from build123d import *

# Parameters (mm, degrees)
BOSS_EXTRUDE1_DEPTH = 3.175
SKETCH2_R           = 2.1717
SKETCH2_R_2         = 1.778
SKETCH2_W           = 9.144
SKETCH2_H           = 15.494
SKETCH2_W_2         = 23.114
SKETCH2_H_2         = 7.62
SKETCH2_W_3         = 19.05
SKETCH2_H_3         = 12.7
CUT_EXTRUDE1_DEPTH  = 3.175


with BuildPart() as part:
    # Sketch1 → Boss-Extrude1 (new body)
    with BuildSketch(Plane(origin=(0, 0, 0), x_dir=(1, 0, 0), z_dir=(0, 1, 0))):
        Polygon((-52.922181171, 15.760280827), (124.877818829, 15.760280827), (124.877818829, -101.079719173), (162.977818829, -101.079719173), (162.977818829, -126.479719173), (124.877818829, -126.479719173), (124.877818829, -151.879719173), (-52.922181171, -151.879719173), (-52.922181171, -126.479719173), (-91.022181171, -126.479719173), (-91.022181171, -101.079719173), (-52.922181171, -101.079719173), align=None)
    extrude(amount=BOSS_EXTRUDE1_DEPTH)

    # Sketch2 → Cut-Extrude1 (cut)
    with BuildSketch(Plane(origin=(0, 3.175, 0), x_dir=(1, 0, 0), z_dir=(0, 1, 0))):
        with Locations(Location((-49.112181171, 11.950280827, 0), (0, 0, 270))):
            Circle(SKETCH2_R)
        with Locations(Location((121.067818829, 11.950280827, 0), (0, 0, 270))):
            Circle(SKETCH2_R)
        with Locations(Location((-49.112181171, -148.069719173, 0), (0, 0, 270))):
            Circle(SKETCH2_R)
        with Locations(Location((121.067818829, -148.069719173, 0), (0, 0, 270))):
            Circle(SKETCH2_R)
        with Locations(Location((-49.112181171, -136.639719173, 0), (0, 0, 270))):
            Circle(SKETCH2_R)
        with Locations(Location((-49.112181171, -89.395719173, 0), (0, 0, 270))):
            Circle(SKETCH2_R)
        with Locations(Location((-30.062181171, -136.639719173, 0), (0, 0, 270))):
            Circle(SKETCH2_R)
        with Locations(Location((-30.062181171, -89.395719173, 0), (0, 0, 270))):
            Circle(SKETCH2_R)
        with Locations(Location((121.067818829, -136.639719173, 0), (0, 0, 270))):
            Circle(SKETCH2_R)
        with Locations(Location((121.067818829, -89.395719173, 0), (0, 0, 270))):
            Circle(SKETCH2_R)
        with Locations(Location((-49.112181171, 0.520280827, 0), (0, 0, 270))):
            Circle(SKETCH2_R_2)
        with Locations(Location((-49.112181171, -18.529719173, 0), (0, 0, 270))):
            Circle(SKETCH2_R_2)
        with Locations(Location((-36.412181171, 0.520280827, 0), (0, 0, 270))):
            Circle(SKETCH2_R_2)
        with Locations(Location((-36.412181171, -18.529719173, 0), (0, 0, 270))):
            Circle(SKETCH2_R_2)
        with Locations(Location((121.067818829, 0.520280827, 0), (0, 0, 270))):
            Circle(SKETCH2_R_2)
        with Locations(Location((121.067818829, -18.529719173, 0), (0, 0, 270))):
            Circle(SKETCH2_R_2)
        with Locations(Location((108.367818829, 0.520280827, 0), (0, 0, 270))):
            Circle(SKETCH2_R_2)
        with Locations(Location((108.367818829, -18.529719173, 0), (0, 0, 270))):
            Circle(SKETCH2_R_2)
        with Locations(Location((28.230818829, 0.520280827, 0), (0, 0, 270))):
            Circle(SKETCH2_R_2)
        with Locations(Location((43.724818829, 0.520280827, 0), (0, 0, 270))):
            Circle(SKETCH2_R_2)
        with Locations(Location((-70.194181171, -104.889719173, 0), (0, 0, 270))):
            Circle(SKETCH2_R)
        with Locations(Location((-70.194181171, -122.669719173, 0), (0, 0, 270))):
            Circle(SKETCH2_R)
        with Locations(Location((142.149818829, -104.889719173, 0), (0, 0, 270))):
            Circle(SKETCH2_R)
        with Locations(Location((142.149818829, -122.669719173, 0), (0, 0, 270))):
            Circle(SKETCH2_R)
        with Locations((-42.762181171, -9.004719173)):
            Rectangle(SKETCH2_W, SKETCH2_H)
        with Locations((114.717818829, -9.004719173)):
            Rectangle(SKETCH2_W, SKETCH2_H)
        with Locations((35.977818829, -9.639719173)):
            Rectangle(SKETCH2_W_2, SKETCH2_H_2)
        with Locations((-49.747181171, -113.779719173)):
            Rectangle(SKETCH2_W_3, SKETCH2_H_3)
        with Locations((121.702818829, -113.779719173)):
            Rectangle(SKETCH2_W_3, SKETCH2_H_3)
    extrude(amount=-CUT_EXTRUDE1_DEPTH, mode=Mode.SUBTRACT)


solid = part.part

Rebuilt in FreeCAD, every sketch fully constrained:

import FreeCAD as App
import Part
import Sketcher

V = App.Vector
Q = App.Units.Quantity

doc = App.newDocument("Part")
body = doc.addObject("PartDesign::Body", "Body")

# Sketch on XZ plane
sketch1 = body.newObject("Sketcher::SketchObject", "Sketch")
sketch1.AttachmentSupport = (doc.getObject("XZ_Plane"), [""])
sketch1.MapMode = "FlatFace"
sketch1.addGeometry(Part.LineSegment(V(125, -16, 0), V(-53, -16, 0)), False)
sketch1.addGeometry(Part.LineSegment(V(-53, -16, 0), V(-53, 101, 0)), False)
sketch1.addGeometry(Part.LineSegment(V(-53, 101, 0), V(-91, 101, 0)), False)
sketch1.addGeometry(Part.LineSegment(V(-91, 101, 0), V(-91, 126, 0)), False)
sketch1.addGeometry(Part.LineSegment(V(-91, 126, 0), V(-53, 126, 0)), False)
sketch1.addGeometry(Part.LineSegment(V(-53, 126, 0), V(-53, 152, 0)), False)
sketch1.addGeometry(Part.LineSegment(V(-53, 152, 0), V(125, 152, 0)), False)
sketch1.addGeometry(Part.LineSegment(V(125, 152, 0), V(125, 126, 0)), False)
sketch1.addGeometry(Part.LineSegment(V(125, 126, 0), V(163, 126, 0)), False)
sketch1.addGeometry(Part.LineSegment(V(163, 126, 0), V(163, 101, 0)), False)
sketch1.addGeometry(Part.LineSegment(V(163, 101, 0), V(125, 101, 0)), False)
sketch1.addGeometry(Part.LineSegment(V(125, 101, 0), V(125, -16, 0)), False)
sketch1.addConstraint(Sketcher.Constraint("Coincident", 0, 2, 1, 1))
sketch1.addConstraint(Sketcher.Constraint("Coincident", 1, 2, 2, 1))
sketch1.addConstraint(Sketcher.Constraint("Coincident", 2, 2, 3, 1))
sketch1.addConstraint(Sketcher.Constraint("Coincident", 3, 2, 4, 1))
sketch1.addConstraint(Sketcher.Constraint("Coincident", 4, 2, 5, 1))
sketch1.addConstraint(Sketcher.Constraint("Coincident", 5, 2, 6, 1))
sketch1.addConstraint(Sketcher.Constraint("Coincident", 6, 2, 7, 1))
sketch1.addConstraint(Sketcher.Constraint("Coincident", 7, 2, 8, 1))
sketch1.addConstraint(Sketcher.Constraint("Coincident", 8, 2, 9, 1))
sketch1.addConstraint(Sketcher.Constraint("Coincident", 9, 2, 10, 1))
sketch1.addConstraint(Sketcher.Constraint("Coincident", 10, 2, 11, 1))
sketch1.addConstraint(Sketcher.Constraint("Coincident", 11, 2, 0, 1))
sketch1.addConstraint(Sketcher.Constraint("Horizontal", 0))
sketch1.addConstraint(Sketcher.Constraint("Vertical", 1))
sketch1.addConstraint(Sketcher.Constraint("Horizontal", 2))
sketch1.addConstraint(Sketcher.Constraint("Vertical", 3))
sketch1.addConstraint(Sketcher.Constraint("Horizontal", 4))
sketch1.addConstraint(Sketcher.Constraint("Vertical", 5))
sketch1.addConstraint(Sketcher.Constraint("Horizontal", 6))
sketch1.addConstraint(Sketcher.Constraint("Vertical", 7))
sketch1.addConstraint(Sketcher.Constraint("Horizontal", 8))
sketch1.addConstraint(Sketcher.Constraint("Vertical", 9))
sketch1.addConstraint(Sketcher.Constraint("Horizontal", 10))
sketch1.addConstraint(Sketcher.Constraint("Vertical", 11))
sketch1.addConstraint(Sketcher.Constraint("Horizontal", 4, 2, 7, 2))
sketch1.addConstraint(Sketcher.Constraint("Horizontal", 2, 2, 9, 2))
sketch1.addConstraint(Sketcher.Constraint("Vertical", 1, 2, 4, 2))
sketch1.addConstraint(Sketcher.Constraint("Vertical", 7, 2, 10, 2))
sketch1.addConstraint(Sketcher.Constraint("Equal", 4, 8))
sketch1.addConstraint(Sketcher.Constraint("Equal", 3, 5))
sketch1.addConstraint(Sketcher.Constraint("DistanceX", 0, 2, 0, 1, Q("7 in")))
sketch1.addConstraint(Sketcher.Constraint("DistanceY", 3, 1, 3, 2, Q("1 in")))
sketch1.addConstraint(Sketcher.Constraint("DistanceX", 2, 2, 2, 1, Q("1.5 in")))
sketch1.addConstraint(Sketcher.Constraint("DistanceY", 1, 1, 1, 2, Q("4.6 in")))
sketch1.addConstraint(Sketcher.Constraint("DistanceX", 0, 2, -1, 1, 52.922181))
sketch1.addConstraint(Sketcher.Constraint("DistanceY", 0, 2, -1, 1, 15.760281))
pad1 = body.newObject("PartDesign::Pad", "Pad")
pad1.Profile = sketch1
pad1.Length = Q("0.125 in")
pad1.Reversed = True

# Sketch on XZ plane
sketch2 = body.newObject("Sketcher::SketchObject", "Sketch001")
sketch2.AttachmentSupport = (doc.getObject("XZ_Plane"), [""])
sketch2.MapMode = "FlatFace"
sketch2.AttachmentOffset = App.Placement(V(0, 0, -0.125 * 25.4), App.Rotation())
sketch2.addGeometry(Part.Circle(V(-49.1, -12, 0), V(0, 0, 1), 2.2), False)
sketch2.addGeometry(Part.Circle(V(121.1, -12, 0), V(0, 0, 1), 2.2), False)
sketch2.addGeometry(Part.Circle(V(-49.1, 148.1, 0), V(0, 0, 1), 2.2), False)
sketch2.addGeometry(Part.Circle(V(121.1, 148.1, 0), V(0, 0, 1), 2.2), False)
sketch2.addGeometry(Part.Circle(V(-49.1, 136.6, 0), V(0, 0, 1), 2.2), False)
sketch2.addGeometry(Part.Circle(V(-49.1, 89.4, 0), V(0, 0, 1), 2.2), False)
sketch2.addGeometry(Part.Circle(V(-30.1, 136.6, 0), V(0, 0, 1), 2.2), False)
sketch2.addGeometry(Part.Circle(V(-30.1, 89.4, 0), V(0, 0, 1), 2.2), False)
sketch2.addGeometry(Part.Circle(V(121.1, 136.6, 0), V(0, 0, 1), 2.2), False)
sketch2.addGeometry(Part.Circle(V(121.1, 89.4, 0), V(0, 0, 1), 2.2), False)
sketch2.addGeometry(Part.Circle(V(-49.1, -0.5, 0), V(0, 0, 1), 1.8), False)
sketch2.addGeometry(Part.Circle(V(-49.1, 18.5, 0), V(0, 0, 1), 1.8), False)
sketch2.addGeometry(Part.Circle(V(-36.4, -0.5, 0), V(0, 0, 1), 1.8), False)
sketch2.addGeometry(Part.Circle(V(-36.4, 18.5, 0), V(0, 0, 1), 1.8), False)
sketch2.addGeometry(Part.Circle(V(121.1, -0.5, 0), V(0, 0, 1), 1.8), False)
sketch2.addGeometry(Part.Circle(V(121.1, 18.5, 0), V(0, 0, 1), 1.8), False)
sketch2.addGeometry(Part.Circle(V(108.4, -0.5, 0), V(0, 0, 1), 1.8), False)
sketch2.addGeometry(Part.Circle(V(108.4, 18.5, 0), V(0, 0, 1), 1.8), False)
sketch2.addGeometry(Part.Circle(V(28.2, -0.5, 0), V(0, 0, 1), 1.8), False)
sketch2.addGeometry(Part.Circle(V(43.7, -0.5, 0), V(0, 0, 1), 1.8), False)
sketch2.addGeometry(Part.Circle(V(-70.2, 104.9, 0), V(0, 0, 1), 2.2), False)
sketch2.addGeometry(Part.Circle(V(-70.2, 122.7, 0), V(0, 0, 1), 2.2), False)
sketch2.addGeometry(Part.Circle(V(142.1, 104.9, 0), V(0, 0, 1), 2.2), False)
sketch2.addGeometry(Part.Circle(V(142.1, 122.7, 0), V(0, 0, 1), 2.2), False)
sketch2.addGeometry(Part.LineSegment(V(-47.3, 1.3, 0), V(-47.3, 16.8, 0)), False)
sketch2.addGeometry(Part.LineSegment(V(-47.3, 16.8, 0), V(-38.2, 16.8, 0)), False)
sketch2.addGeometry(Part.LineSegment(V(-38.2, 16.8, 0), V(-38.2, 1.3, 0)), False)
sketch2.addGeometry(Part.LineSegment(V(-38.2, 1.3, 0), V(-47.3, 1.3, 0)), False)
sketch2.addGeometry(Part.LineSegment(V(110.1, 1.3, 0), V(110.1, 16.8, 0)), False)
sketch2.addGeometry(Part.LineSegment(V(110.1, 16.8, 0), V(119.3, 16.8, 0)), False)
sketch2.addGeometry(Part.LineSegment(V(119.3, 16.8, 0), V(119.3, 1.3, 0)), False)
sketch2.addGeometry(Part.LineSegment(V(119.3, 1.3, 0), V(110.1, 1.3, 0)), False)
sketch2.addGeometry(Part.LineSegment(V(24.4, 5.8, 0), V(24.4, 13.4, 0)), False)
sketch2.addGeometry(Part.LineSegment(V(24.4, 13.4, 0), V(47.5, 13.4, 0)), False)
sketch2.addGeometry(Part.LineSegment(V(47.5, 13.4, 0), V(47.5, 5.8, 0)), False)
sketch2.addGeometry(Part.LineSegment(V(47.5, 5.8, 0), V(24.4, 5.8, 0)), False)
sketch2.addGeometry(Part.LineSegment(V(-59.3, 107.4, 0), V(-59.3, 120.1, 0)), False)
sketch2.addGeometry(Part.LineSegment(V(-59.3, 120.1, 0), V(-40.2, 120.1, 0)), False)
sketch2.addGeometry(Part.LineSegment(V(-40.2, 120.1, 0), V(-40.2, 107.4, 0)), False)
sketch2.addGeometry(Part.LineSegment(V(-40.2, 107.4, 0), V(-59.3, 107.4, 0)), False)
sketch2.addGeometry(Part.LineSegment(V(112.2, 107.4, 0), V(112.2, 120.1, 0)), False)
sketch2.addGeometry(Part.LineSegment(V(112.2, 120.1, 0), V(131.2, 120.1, 0)), False)
sketch2.addGeometry(Part.LineSegment(V(131.2, 120.1, 0), V(131.2, 107.4, 0)), False)
sketch2.addGeometry(Part.LineSegment(V(131.2, 107.4, 0), V(112.2, 107.4, 0)), False)
sketch2.addConstraint(Sketcher.Constraint("Coincident", 24, 2, 25, 1))
sketch2.addConstraint(Sketcher.Constraint("Coincident", 25, 2, 26, 1))
sketch2.addConstraint(Sketcher.Constraint("Coincident", 26, 2, 27, 1))
sketch2.addConstraint(Sketcher.Constraint("Coincident", 27, 2, 24, 1))
sketch2.addConstraint(Sketcher.Constraint("Coincident", 28, 2, 29, 1))
sketch2.addConstraint(Sketcher.Constraint("Coincident", 29, 2, 30, 1))
sketch2.addConstraint(Sketcher.Constraint("Coincident", 30, 2, 31, 1))
sketch2.addConstraint(Sketcher.Constraint("Coincident", 31, 2, 28, 1))
sketch2.addConstraint(Sketcher.Constraint("Coincident", 32, 2, 33, 1))
sketch2.addConstraint(Sketcher.Constraint("Coincident", 33, 2, 34, 1))
sketch2.addConstraint(Sketcher.Constraint("Coincident", 34, 2, 35, 1))
sketch2.addConstraint(Sketcher.Constraint("Coincident", 35, 2, 32, 1))
sketch2.addConstraint(Sketcher.Constraint("Coincident", 36, 2, 37, 1))
sketch2.addConstraint(Sketcher.Constraint("Coincident", 37, 2, 38, 1))
sketch2.addConstraint(Sketcher.Constraint("Coincident", 38, 2, 39, 1))
sketch2.addConstraint(Sketcher.Constraint("Coincident", 39, 2, 36, 1))
sketch2.addConstraint(Sketcher.Constraint("Coincident", 40, 2, 41, 1))
sketch2.addConstraint(Sketcher.Constraint("Coincident", 41, 2, 42, 1))
sketch2.addConstraint(Sketcher.Constraint("Coincident", 42, 2, 43, 1))
sketch2.addConstraint(Sketcher.Constraint("Coincident", 43, 2, 40, 1))
sketch2.addConstraint(Sketcher.Constraint("Vertical", 24))
sketch2.addConstraint(Sketcher.Constraint("Horizontal", 25))
sketch2.addConstraint(Sketcher.Constraint("Vertical", 26))
sketch2.addConstraint(Sketcher.Constraint("Horizontal", 27))
sketch2.addConstraint(Sketcher.Constraint("Vertical", 28))
sketch2.addConstraint(Sketcher.Constraint("Horizontal", 29))
sketch2.addConstraint(Sketcher.Constraint("Vertical", 30))
sketch2.addConstraint(Sketcher.Constraint("Horizontal", 31))
sketch2.addConstraint(Sketcher.Constraint("Vertical", 32))
sketch2.addConstraint(Sketcher.Constraint("Horizontal", 33))
sketch2.addConstraint(Sketcher.Constraint("Vertical", 34))
sketch2.addConstraint(Sketcher.Constraint("Horizontal", 35))
sketch2.addConstraint(Sketcher.Constraint("Vertical", 36))
sketch2.addConstraint(Sketcher.Constraint("Horizontal", 37))
sketch2.addConstraint(Sketcher.Constraint("Vertical", 38))
sketch2.addConstraint(Sketcher.Constraint("Horizontal", 39))
sketch2.addConstraint(Sketcher.Constraint("Vertical", 40))
sketch2.addConstraint(Sketcher.Constraint("Horizontal", 41))
sketch2.addConstraint(Sketcher.Constraint("Vertical", 42))
sketch2.addConstraint(Sketcher.Constraint("Horizontal", 43))
sketch2.addConstraint(Sketcher.Constraint("Equal", 0, 1))
sketch2.addConstraint(Sketcher.Constraint("Equal", 1, 2))
sketch2.addConstraint(Sketcher.Constraint("Equal", 2, 3))
sketch2.addConstraint(Sketcher.Constraint("Equal", 3, 4))
sketch2.addConstraint(Sketcher.Constraint("Equal", 4, 5))
sketch2.addConstraint(Sketcher.Constraint("Equal", 5, 6))
sketch2.addConstraint(Sketcher.Constraint("Equal", 6, 7))
sketch2.addConstraint(Sketcher.Constraint("Equal", 7, 8))
sketch2.addConstraint(Sketcher.Constraint("Equal", 8, 9))
sketch2.addConstraint(Sketcher.Constraint("Equal", 10, 11))
sketch2.addConstraint(Sketcher.Constraint("Equal", 11, 12))
sketch2.addConstraint(Sketcher.Constraint("Equal", 12, 13))
sketch2.addConstraint(Sketcher.Constraint("Equal", 13, 14))
sketch2.addConstraint(Sketcher.Constraint("Equal", 14, 15))
sketch2.addConstraint(Sketcher.Constraint("Equal", 15, 16))
sketch2.addConstraint(Sketcher.Constraint("Equal", 16, 17))
sketch2.addConstraint(Sketcher.Constraint("Equal", 17, 18))
sketch2.addConstraint(Sketcher.Constraint("Equal", 18, 19))
sketch2.addConstraint(Sketcher.Constraint("Equal", 9, 20))
sketch2.addConstraint(Sketcher.Constraint("Equal", 20, 21))
sketch2.addConstraint(Sketcher.Constraint("Equal", 21, 22))
sketch2.addConstraint(Sketcher.Constraint("Equal", 22, 23))
sketch2.addConstraint(Sketcher.Constraint("Horizontal", 0, 3, 1, 3))
sketch2.addConstraint(Sketcher.Constraint("Horizontal", 2, 3, 3, 3))
sketch2.addConstraint(Sketcher.Constraint("Horizontal", 4, 3, 6, 3))
sketch2.addConstraint(Sketcher.Constraint("Horizontal", 5, 3, 7, 3))
sketch2.addConstraint(Sketcher.Constraint("Horizontal", 6, 3, 8, 3))
sketch2.addConstraint(Sketcher.Constraint("Horizontal", 7, 3, 9, 3))
sketch2.addConstraint(Sketcher.Constraint("Horizontal", 10, 3, 12, 3))
sketch2.addConstraint(Sketcher.Constraint("Horizontal", 11, 3, 13, 3))
sketch2.addConstraint(Sketcher.Constraint("Horizontal", 12, 3, 14, 3))
sketch2.addConstraint(Sketcher.Constraint("Horizontal", 13, 3, 15, 3))
sketch2.addConstraint(Sketcher.Constraint("Horizontal", 14, 3, 16, 3))
sketch2.addConstraint(Sketcher.Constraint("Horizontal", 15, 3, 17, 3))
sketch2.addConstraint(Sketcher.Constraint("Horizontal", 16, 3, 18, 3))
sketch2.addConstraint(Sketcher.Constraint("Horizontal", 18, 3, 19, 3))
sketch2.addConstraint(Sketcher.Constraint("Horizontal", 20, 3, 22, 3))
sketch2.addConstraint(Sketcher.Constraint("Horizontal", 21, 3, 23, 3))
sketch2.addConstraint(Sketcher.Constraint("Horizontal", 25, 2, 28, 2))
sketch2.addConstraint(Sketcher.Constraint("Horizontal", 27, 2, 30, 2))
sketch2.addConstraint(Sketcher.Constraint("Horizontal", 37, 2, 40, 2))
sketch2.addConstraint(Sketcher.Constraint("Horizontal", 39, 2, 42, 2))
sketch2.addConstraint(Sketcher.Constraint("Vertical", 0, 3, 2, 3))
sketch2.addConstraint(Sketcher.Constraint("Vertical", 1, 3, 3, 3))
sketch2.addConstraint(Sketcher.Constraint("Vertical", 2, 3, 4, 3))
sketch2.addConstraint(Sketcher.Constraint("Vertical", 4, 3, 5, 3))
sketch2.addConstraint(Sketcher.Constraint("Vertical", 6, 3, 7, 3))
sketch2.addConstraint(Sketcher.Constraint("Vertical", 3, 3, 8, 3))
sketch2.addConstraint(Sketcher.Constraint("Vertical", 8, 3, 9, 3))
sketch2.addConstraint(Sketcher.Constraint("Vertical", 5, 3, 10, 3))
sketch2.addConstraint(Sketcher.Constraint("Vertical", 10, 3, 11, 3))
sketch2.addConstraint(Sketcher.Constraint("Vertical", 12, 3, 13, 3))
sketch2.addConstraint(Sketcher.Constraint("Vertical", 9, 3, 14, 3))
sketch2.addConstraint(Sketcher.Constraint("Vertical", 14, 3, 15, 3))
sketch2.addConstraint(Sketcher.Constraint("Vertical", 16, 3, 17, 3))
sketch2.addConstraint(Sketcher.Constraint("Vertical", 20, 3, 21, 3))
sketch2.addConstraint(Sketcher.Constraint("Vertical", 22, 3, 23, 3))
sketch2.addConstraint(Sketcher.Constraint("Equal", 27, 29))
sketch2.addConstraint(Sketcher.Constraint("Equal", 39, 41))
sketch2.addConstraint(Sketcher.Constraint("Diameter", 10, Q("0.14 in")))
sketch2.addConstraint(Sketcher.Constraint("Diameter", 0, Q("0.171 in")))
sketch2.addConstraint(Sketcher.Constraint("DistanceY", 32, 1, 32, 2, Q("0.3 in")))
sketch2.addConstraint(Sketcher.Constraint("DistanceY", 36, 1, 36, 2, Q("0.5 in")))
sketch2.addConstraint(Sketcher.Constraint("DistanceY", 21, 3, 2, 3, Q("1 in")))
sketch2.addConstraint(Sketcher.Constraint("DistanceX", 25, 1, 25, 2, Q("0.36 in")))
sketch2.addConstraint(Sketcher.Constraint("DistanceX", 33, 1, 33, 2, Q("0.91 in")))
sketch2.addConstraint(Sketcher.Constraint("DistanceX", 37, 1, 37, 2, Q("0.75 in")))
sketch2.addConstraint(Sketcher.Constraint("DistanceY", 24, 1, 24, 2, Q("0.61 in")))
sketch2.addConstraint(Sketcher.Constraint("DistanceX", 0, 3, 1, 3, Q("6.7 in")))
sketch2.addConstraint(Sketcher.Constraint("DistanceY", 0, 3, 2, 3, Q("6.3 in")))
sketch2.addConstraint(Sketcher.Constraint("DistanceY", 10, 3, 4, 3, Q("5.4 in")))
sketch2.addConstraint(Sketcher.Constraint("DistanceY", 0, 3, 11, 3, Q("1.2 in")))
sketch2.addConstraint(Sketcher.Constraint("DistanceX", 10, 3, 12, 3, Q("0.5 in")))
sketch2.addConstraint(Sketcher.Constraint("DistanceX", 16, 3, 14, 3, Q("0.5 in")))
sketch2.addConstraint(Sketcher.Constraint("DistanceY", 20, 3, 2, 3, Q("1.7 in")))
sketch2.addConstraint(Sketcher.Constraint("DistanceY", 32, 2, 13, 3, Q("0.2 in")))
sketch2.addConstraint(Sketcher.Constraint("DistanceY", 36, 2, 21, 3, Q("0.1 in")))
sketch2.addConstraint(Sketcher.Constraint("DistanceX", 36, 2, 4, 3, Q("0.4 in")))
sketch2.addConstraint(Sketcher.Constraint("DistanceX", 37, 2, 6, 3, Q("0.4 in")))
sketch2.addConstraint(Sketcher.Constraint("DistanceX", 8, 3, 41, 2, Q("0.4 in")))
sketch2.addConstraint(Sketcher.Constraint("DistanceY", 4, 3, 2, 3, Q("0.45 in")))
sketch2.addConstraint(Sketcher.Constraint("DistanceY", 5, 3, 4, 3, Q("1.86 in")))
sketch2.addConstraint(Sketcher.Constraint("DistanceX", 18, 3, 19, 3, Q("0.61 in")))
sketch2.addConstraint(Sketcher.Constraint("DistanceX", 20, 3, 5, 3, Q("0.83 in")))
sketch2.addConstraint(Sketcher.Constraint("DistanceX", 9, 3, 22, 3, Q("0.83 in")))
sketch2.addConstraint(Sketcher.Constraint("DistanceX", 11, 3, 24, 2, Q("0.07 in")))
sketch2.addConstraint(Sketcher.Constraint("DistanceY", 24, 2, 11, 3, Q("0.07 in")))
sketch2.addConstraint(Sketcher.Constraint("DistanceX", 17, 3, 28, 2, Q("0.07 in")))
sketch2.addConstraint(Sketcher.Constraint("DistanceX", 32, 2, 18, 3, Q("0.15 in")))
sketch2.addConstraint(Sketcher.Constraint("DistanceX", 12, 3, 18, 3, Q("2.545 in")))
sketch2.addConstraint(Sketcher.Constraint("DistanceX", 0, 3, -1, 1, 49.112181))
sketch2.addConstraint(Sketcher.Constraint("DistanceY", 0, 3, -1, 1, 11.950281))
pocket1 = body.newObject("PartDesign::Pocket", "Pocket")
pocket1.Profile = sketch2
pocket1.Length = Q("0.125 in")
pocket1.Reversed = True

doc.recompute()
